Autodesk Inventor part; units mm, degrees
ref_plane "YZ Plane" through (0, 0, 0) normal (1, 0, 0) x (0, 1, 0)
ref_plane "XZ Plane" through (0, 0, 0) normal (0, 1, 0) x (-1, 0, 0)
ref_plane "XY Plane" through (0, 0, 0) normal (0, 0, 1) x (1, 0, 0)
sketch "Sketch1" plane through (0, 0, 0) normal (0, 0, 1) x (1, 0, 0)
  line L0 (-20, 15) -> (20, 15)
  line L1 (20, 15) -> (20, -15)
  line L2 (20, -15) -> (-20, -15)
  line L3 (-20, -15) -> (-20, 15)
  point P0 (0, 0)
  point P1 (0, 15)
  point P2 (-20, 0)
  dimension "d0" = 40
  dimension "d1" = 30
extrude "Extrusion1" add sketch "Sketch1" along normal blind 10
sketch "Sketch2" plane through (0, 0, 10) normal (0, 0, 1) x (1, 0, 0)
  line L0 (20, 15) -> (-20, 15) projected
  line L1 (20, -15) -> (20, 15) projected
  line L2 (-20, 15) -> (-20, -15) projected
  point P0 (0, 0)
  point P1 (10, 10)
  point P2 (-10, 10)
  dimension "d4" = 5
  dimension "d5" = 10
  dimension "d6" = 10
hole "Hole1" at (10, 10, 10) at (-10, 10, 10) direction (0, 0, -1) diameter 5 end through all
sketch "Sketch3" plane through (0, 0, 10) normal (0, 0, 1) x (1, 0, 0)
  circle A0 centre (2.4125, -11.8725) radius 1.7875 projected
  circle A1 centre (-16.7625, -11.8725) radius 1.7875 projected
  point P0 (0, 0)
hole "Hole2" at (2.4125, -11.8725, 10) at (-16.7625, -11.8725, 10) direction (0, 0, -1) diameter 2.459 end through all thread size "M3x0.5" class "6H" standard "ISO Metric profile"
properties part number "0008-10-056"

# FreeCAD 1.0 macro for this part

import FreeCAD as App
import Part
import Sketcher

V = App.Vector

doc = App.newDocument("Part")
params = doc.addObject("Spreadsheet::Sheet", "Params")
for row, (alias, value) in enumerate([
    ("sketch1_width", "40 mm"),
    ("sketch1_height", "30 mm"),
    ("pad1_length", "10 mm"),
    ("sketch2_diameter", "5 mm"),
    ("hole_diameter", "5 mm"),
    ("hole2_diameter", "2.459 mm"),
], start=1):
    params.set(f"A{row}", alias)
    params.set(f"B{row}", "=" + value)
    params.setAlias(f"B{row}", alias)

body = doc.addObject("PartDesign::Body", "Body")

sketch1 = doc.addObject("Sketcher::SketchObject", "Sketch")
body.addObject(sketch1)
sketch1.AttachmentSupport = (doc.XY_Plane, [""])
sketch1.MapMode = "FlatFace"
sketch1.addGeometry(Part.LineSegment(V(20, 15, 0), V(-20, 15, 0)), False)
sketch1.addGeometry(Part.LineSegment(V(-20, 15, 0), V(-20, -15, 0)), False)
sketch1.addGeometry(Part.LineSegment(V(-20, -15, 0), V(20, -15, 0)), False)
sketch1.addGeometry(Part.LineSegment(V(20, -15, 0), V(20, 15, 0)), False)
sketch1.addConstraint(Sketcher.Constraint("Coincident", 0, 2, 1, 1))
sketch1.addConstraint(Sketcher.Constraint("Coincident", 1, 2, 2, 1))
sketch1.addConstraint(Sketcher.Constraint("Coincident", 2, 2, 3, 1))
sketch1.addConstraint(Sketcher.Constraint("Coincident", 3, 2, 0, 1))
sketch1.addConstraint(Sketcher.Constraint("Horizontal", 0))
sketch1.addConstraint(Sketcher.Constraint("Vertical", 1))
sketch1.addConstraint(Sketcher.Constraint("Horizontal", 2))
sketch1.addConstraint(Sketcher.Constraint("Vertical", 3))
sketch1.addConstraint(Sketcher.Constraint("Symmetric", 0, 2, 2, 2, -1, 1))
sketch1.addConstraint(Sketcher.Constraint("DistanceX", 0, 2, 0, 1, 40.0))
sketch1.addConstraint(Sketcher.Constraint("DistanceY", 1, 2, 1, 1, 30.0))
sketch1.setExpression("Constraints[9]", "Params.sketch1_width")
sketch1.setExpression("Constraints[10]", "Params.sketch1_height")
pad1 = doc.addObject("PartDesign::Pad", "Pad")
body.addObject(pad1)
pad1.Profile = sketch1
pad1.setExpression("Length", "Params.pad1_length")

sketch2 = doc.addObject("Sketcher::SketchObject", "Sketch001")
body.addObject(sketch2)
sketch2.AttachmentSupport = (doc.XY_Plane, [""])
sketch2.MapMode = "FlatFace"
sketch2.AttachmentOffset = App.Placement(V(0, 0, 10), App.Rotation())
sketch2.addGeometry(Part.Circle(V(10, 10, 0), V(0, 0, 1), 2.5), False)
sketch2.addGeometry(Part.Circle(V(-10, 10, 0), V(0, 0, 1), 2.5), False)
sketch2.addConstraint(Sketcher.Constraint("Equal", 0, 1))
sketch2.addConstraint(Sketcher.Constraint("Symmetric", 0, 3, 1, 3, -2))
sketch2.addConstraint(Sketcher.Constraint("Diameter", 0, 5.0))
sketch2.addConstraint(Sketcher.Constraint("DistanceX", -1, 1, 0, 3, 10.0))
sketch2.addConstraint(Sketcher.Constraint("DistanceY", -1, 1, 0, 3, 10.0))
sketch2.setExpression("Constraints[2]", "Params.sketch2_diameter")
doc.recompute()
hole = doc.addObject("PartDesign::Hole", "Hole")
body.addObject(hole)
hole.Profile = sketch2
hole.ThreadType = "None"
hole.setExpression("Diameter", "Params.hole_diameter")
hole.DepthType = "ThroughAll"

sketch3 = doc.addObject("Sketcher::SketchObject", "Sketch002")
body.addObject(sketch3)
sketch3.AttachmentSupport = (doc.XY_Plane, [""])
sketch3.MapMode = "FlatFace"
sketch3.AttachmentOffset = App.Placement(V(0, 0, 10), App.Rotation())
sketch3.addGeometry(Part.Circle(V(2.4, -11.9, 0), V(0, 0, 1), 1.2), False)
sketch3.addGeometry(Part.Circle(V(-16.8, -11.9, 0), V(0, 0, 1), 1.2), False)
sketch3.addConstraint(Sketcher.Constraint("Equal", 0, 1))
sketch3.addConstraint(Sketcher.Constraint("Horizontal", 0, 3, 1, 3))
sketch3.addConstraint(Sketcher.Constraint("Diameter", 0, 2.459))
sketch3.addConstraint(Sketcher.Constraint("DistanceX", 1, 3, 0, 3, 19.175))
sketch3.addConstraint(Sketcher.Constraint("DistanceX", -1, 1, 0, 3, 2.4125))
sketch3.addConstraint(Sketcher.Constraint("DistanceY", 0, 3, -1, 1, 11.8725))
doc.recompute()
hole2 = doc.addObject("PartDesign::Hole", "Hole001")
body.addObject(hole2)
hole2.Profile = sketch3
hole2.ThreadType = "None"
hole2.setExpression("Diameter", "Params.hole2_diameter")
hole2.DepthType = "ThroughAll"

doc.recompute()
